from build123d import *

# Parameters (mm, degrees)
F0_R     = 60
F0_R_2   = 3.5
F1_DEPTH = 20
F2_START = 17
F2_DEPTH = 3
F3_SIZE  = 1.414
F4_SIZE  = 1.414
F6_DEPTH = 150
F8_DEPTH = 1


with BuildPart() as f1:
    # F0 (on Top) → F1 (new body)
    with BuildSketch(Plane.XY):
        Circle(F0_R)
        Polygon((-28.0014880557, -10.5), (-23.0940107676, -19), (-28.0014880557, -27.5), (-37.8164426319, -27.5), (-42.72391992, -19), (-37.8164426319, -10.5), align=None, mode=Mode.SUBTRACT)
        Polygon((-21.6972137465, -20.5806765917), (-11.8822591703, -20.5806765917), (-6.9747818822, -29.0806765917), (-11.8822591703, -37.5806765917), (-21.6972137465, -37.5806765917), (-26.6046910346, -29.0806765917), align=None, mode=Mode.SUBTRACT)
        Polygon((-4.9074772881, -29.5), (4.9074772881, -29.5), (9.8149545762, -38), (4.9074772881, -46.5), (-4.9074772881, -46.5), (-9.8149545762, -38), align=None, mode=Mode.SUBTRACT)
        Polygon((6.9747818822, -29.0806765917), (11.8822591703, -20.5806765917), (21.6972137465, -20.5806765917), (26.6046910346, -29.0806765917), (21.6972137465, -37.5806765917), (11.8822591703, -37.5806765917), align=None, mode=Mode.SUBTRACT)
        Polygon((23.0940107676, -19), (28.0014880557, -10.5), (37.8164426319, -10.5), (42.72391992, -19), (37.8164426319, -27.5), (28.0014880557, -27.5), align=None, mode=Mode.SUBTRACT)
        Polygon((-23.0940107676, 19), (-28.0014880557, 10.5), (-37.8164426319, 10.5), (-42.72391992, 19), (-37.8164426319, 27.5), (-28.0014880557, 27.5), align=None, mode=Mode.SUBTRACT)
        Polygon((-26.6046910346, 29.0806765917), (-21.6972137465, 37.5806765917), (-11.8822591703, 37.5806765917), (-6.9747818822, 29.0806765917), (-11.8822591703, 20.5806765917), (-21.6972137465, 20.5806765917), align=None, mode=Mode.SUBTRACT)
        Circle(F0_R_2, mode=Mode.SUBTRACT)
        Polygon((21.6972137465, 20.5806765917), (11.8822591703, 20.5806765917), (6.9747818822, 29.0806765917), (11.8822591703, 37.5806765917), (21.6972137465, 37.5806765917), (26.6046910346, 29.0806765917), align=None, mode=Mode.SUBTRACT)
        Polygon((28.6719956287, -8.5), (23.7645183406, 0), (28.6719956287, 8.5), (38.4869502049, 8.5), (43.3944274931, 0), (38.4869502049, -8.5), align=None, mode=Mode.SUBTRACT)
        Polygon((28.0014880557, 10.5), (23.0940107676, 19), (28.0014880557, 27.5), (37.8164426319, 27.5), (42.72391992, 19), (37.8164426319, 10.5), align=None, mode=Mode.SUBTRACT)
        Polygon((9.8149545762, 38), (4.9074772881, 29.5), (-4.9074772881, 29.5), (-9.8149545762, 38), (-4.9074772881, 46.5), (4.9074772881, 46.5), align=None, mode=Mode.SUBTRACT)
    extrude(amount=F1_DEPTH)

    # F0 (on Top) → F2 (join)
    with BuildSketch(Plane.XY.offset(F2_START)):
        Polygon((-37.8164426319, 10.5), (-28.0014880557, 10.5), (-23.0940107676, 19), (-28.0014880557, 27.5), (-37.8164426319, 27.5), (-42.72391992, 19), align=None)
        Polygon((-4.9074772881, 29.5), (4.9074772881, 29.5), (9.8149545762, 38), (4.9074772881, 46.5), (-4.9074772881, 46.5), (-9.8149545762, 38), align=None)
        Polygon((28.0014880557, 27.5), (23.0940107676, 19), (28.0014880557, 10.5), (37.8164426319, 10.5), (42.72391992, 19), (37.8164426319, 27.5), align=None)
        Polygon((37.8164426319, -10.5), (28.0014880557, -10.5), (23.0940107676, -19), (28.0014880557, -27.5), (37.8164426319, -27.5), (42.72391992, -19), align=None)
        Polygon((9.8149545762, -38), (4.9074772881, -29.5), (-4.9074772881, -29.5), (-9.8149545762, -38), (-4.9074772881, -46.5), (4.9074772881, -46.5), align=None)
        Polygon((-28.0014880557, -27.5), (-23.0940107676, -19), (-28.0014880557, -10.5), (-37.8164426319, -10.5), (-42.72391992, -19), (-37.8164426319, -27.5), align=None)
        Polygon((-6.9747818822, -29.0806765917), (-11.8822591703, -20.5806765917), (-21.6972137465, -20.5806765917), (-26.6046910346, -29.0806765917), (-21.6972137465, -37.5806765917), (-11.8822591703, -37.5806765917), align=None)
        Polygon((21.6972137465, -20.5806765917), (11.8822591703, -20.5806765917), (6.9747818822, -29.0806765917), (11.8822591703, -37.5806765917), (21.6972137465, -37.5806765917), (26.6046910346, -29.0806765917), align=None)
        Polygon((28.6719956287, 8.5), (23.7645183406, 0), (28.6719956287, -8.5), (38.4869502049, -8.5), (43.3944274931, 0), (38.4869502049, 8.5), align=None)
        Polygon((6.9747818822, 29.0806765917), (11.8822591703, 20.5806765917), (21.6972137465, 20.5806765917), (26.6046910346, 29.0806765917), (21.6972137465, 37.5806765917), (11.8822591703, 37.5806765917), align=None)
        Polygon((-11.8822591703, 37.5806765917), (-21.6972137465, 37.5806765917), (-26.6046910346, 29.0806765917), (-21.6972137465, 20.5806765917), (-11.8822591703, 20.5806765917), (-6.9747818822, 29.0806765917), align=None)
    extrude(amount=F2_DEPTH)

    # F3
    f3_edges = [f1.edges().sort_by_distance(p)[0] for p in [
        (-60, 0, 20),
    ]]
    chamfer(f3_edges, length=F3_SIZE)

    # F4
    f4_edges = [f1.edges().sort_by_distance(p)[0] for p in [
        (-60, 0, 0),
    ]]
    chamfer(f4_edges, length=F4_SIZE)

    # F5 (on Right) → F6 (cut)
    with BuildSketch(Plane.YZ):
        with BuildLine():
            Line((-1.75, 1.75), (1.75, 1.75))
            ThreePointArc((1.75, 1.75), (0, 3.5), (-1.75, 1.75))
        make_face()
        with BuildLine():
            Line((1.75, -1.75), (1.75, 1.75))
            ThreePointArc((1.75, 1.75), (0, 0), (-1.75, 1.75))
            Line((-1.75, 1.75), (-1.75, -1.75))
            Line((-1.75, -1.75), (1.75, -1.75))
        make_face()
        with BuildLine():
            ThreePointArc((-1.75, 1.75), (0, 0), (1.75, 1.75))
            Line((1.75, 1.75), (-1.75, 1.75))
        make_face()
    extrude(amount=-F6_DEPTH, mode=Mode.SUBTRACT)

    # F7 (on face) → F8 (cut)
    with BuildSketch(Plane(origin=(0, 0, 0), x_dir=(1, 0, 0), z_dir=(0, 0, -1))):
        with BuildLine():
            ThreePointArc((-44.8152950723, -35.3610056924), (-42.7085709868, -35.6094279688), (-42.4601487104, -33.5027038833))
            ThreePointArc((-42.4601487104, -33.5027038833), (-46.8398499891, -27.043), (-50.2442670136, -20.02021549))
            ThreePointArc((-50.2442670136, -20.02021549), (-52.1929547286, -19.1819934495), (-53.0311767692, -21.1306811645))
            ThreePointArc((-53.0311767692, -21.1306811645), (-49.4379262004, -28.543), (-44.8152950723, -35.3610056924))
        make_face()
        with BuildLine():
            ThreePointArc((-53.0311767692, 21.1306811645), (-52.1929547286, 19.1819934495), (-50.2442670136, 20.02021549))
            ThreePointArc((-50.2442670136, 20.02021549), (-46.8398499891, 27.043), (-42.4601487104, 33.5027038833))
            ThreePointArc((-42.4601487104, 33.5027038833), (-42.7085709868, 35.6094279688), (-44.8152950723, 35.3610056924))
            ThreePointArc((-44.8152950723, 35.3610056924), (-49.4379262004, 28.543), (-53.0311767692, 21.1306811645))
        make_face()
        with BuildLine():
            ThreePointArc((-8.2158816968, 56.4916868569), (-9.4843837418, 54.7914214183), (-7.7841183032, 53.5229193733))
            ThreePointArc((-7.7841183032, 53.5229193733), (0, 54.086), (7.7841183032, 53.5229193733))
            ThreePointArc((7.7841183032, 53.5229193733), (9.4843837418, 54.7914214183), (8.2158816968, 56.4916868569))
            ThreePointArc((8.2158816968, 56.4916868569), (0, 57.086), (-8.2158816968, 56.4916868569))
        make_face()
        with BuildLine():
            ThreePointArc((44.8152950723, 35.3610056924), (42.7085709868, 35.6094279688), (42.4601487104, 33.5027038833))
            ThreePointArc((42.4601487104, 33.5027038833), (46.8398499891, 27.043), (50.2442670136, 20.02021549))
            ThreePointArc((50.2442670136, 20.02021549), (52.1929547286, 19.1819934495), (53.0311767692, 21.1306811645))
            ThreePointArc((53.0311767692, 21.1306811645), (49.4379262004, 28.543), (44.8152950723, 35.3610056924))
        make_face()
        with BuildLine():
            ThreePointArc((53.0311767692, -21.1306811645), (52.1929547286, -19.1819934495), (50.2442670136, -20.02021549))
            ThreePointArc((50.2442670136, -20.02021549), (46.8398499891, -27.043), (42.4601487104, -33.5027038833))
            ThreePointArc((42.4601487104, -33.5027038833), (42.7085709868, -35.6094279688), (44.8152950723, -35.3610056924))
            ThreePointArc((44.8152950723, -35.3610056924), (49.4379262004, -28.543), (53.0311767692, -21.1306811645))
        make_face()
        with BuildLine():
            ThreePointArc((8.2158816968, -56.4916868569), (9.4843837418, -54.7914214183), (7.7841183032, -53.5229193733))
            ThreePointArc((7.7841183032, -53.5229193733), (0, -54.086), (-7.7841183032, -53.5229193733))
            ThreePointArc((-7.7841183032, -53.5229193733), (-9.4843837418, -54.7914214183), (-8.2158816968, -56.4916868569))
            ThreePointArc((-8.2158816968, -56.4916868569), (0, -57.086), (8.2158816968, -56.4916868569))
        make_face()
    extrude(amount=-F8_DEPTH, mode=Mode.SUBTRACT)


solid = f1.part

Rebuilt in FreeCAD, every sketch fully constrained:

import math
import FreeCAD as App
import Part
import Sketcher
Q = App.Units.Quantity


def edges_at(feature, points):
    """Names of the edges that pass closest to the given points."""
    edges = feature.Shape.Edges
    near = lambda p: min(range(len(edges)), key=lambda i: edges[i].distToShape(Part.Vertex(*p))[0])
    return sorted({f"Edge{near(p) + 1}" for p in points})


def add_polygon(sketch, points):
    """Adds a closed chain of lines whose ends are joined by coincident constraints."""
    first, n = sketch.GeometryCount, len(points)
    for a, b in zip(points, points[1:] + points[:1]):
        sketch.addGeometry(Part.LineSegment(App.Vector(*a, 0), App.Vector(*b, 0)), False)
    for i in range(n):
        sketch.addConstraint(Sketcher.Constraint("Coincident", first + i, 2, first + (i + 1) % n, 1))

doc = App.newDocument("Part")
body = doc.addObject("PartDesign::Body", "Body")

# Sketch on XY plane
sketch1 = doc.addObject("Sketcher::SketchObject", "Sketch")
body.addObject(sketch1)
sketch1.AttachmentSupport = (doc.XY_Plane, [""])
sketch1.MapMode = "FlatFace"
sketch1.addGeometry(Part.Circle(App.Vector(0, 0, 0), App.Vector(0, 0, 1), 60), False)  # 0
add_polygon(sketch1, [(-9.8, -38), (-4.9, -29.5), (4.9, -29.5), (9.8, -38), (4.9, -46.5), (-4.9, -46.5)])  # lines 1-6
add_polygon(sketch1, [(-26.6, -29.1), (-21.7, -20.6), (-11.9, -20.6), (-7, -29.1), (-11.9, -37.6), (-21.7, -37.6)])  # lines 7-12
add_polygon(sketch1, [(-37.8, -10.5), (-28, -10.5), (-23.1, -19), (-28, -27.5), (-37.8, -27.5), (-42.7, -19)])  # lines 13-18
add_polygon(sketch1, [(11.9, -37.6), (7, -29.1), (11.9, -20.6), (21.7, -20.6), (26.6, -29.1), (21.7, -37.6)])  # lines 19-24
add_polygon(sketch1, [(28, -27.5), (23.1, -19), (28, -10.5), (37.8, -10.5), (42.7, -19), (37.8, -27.5)])  # lines 25-30
add_polygon(sketch1, [(-28, 27.5), (-23.1, 19), (-28, 10.5), (-37.8, 10.5), (-42.7, 19), (-37.8, 27.5)])  # lines 31-36
sketch1.addGeometry(Part.Circle(App.Vector(0, 0, 0), App.Vector(0, 0, 1), 3.5), False)  # 37
add_polygon(sketch1, [(-21.7, 20.6), (-26.6, 29.1), (-21.7, 37.6), (-11.9, 37.6), (-7, 29.1), (-11.9, 20.6)])  # lines 38-43
add_polygon(sketch1, [(4.9, 46.5), (9.8, 38), (4.9, 29.5), (-4.9, 29.5), (-9.8, 38), (-4.9, 46.5)])  # lines 44-49
add_polygon(sketch1, [(38.5, -8.5), (28.7, -8.5), (23.8, 0), (28.7, 8.5), (38.5, 8.5), (43.4, 0)])  # lines 50-55
add_polygon(sketch1, [(37.8, 10.5), (28, 10.5), (23.1, 19), (28, 27.5), (37.8, 27.5), (42.7, 19)])  # lines 56-61
add_polygon(sketch1, [(26.6, 29.1), (21.7, 20.6), (11.9, 20.6), (7, 29.1), (11.9, 37.6), (21.7, 37.6)])  # lines 62-67
sketch1.addConstraint(Sketcher.Constraint("Horizontal", 2))
sketch1.addConstraint(Sketcher.Constraint("Horizontal", 5))
sketch1.addConstraint(Sketcher.Constraint("Horizontal", 8))
sketch1.addConstraint(Sketcher.Constraint("Horizontal", 11))
sketch1.addConstraint(Sketcher.Constraint("Horizontal", 13))
sketch1.addConstraint(Sketcher.Constraint("Horizontal", 16))
sketch1.addConstraint(Sketcher.Constraint("Horizontal", 21))
sketch1.addConstraint(Sketcher.Constraint("Horizontal", 24))
sketch1.addConstraint(Sketcher.Constraint("Horizontal", 27))
sketch1.addConstraint(Sketcher.Constraint("Horizontal", 30))
sketch1.addConstraint(Sketcher.Constraint("Horizontal", 33))
sketch1.addConstraint(Sketcher.Constraint("Horizontal", 36))
sketch1.addConstraint(Sketcher.Constraint("Horizontal", 40))
sketch1.addConstraint(Sketcher.Constraint("Horizontal", 43))
sketch1.addConstraint(Sketcher.Constraint("Horizontal", 46))
sketch1.addConstraint(Sketcher.Constraint("Horizontal", 49))
sketch1.addConstraint(Sketcher.Constraint("Horizontal", 50))
sketch1.addConstraint(Sketcher.Constraint("Horizontal", 53))
sketch1.addConstraint(Sketcher.Constraint("Horizontal", 56))
sketch1.addConstraint(Sketcher.Constraint("Horizontal", 59))
sketch1.addConstraint(Sketcher.Constraint("Horizontal", 63))
sketch1.addConstraint(Sketcher.Constraint("Horizontal", 66))
sketch1.addConstraint(Sketcher.Constraint("Coincident", 0, 3, -1, 1))
sketch1.addConstraint(Sketcher.Constraint("Coincident", 37, 3, -1, 1))
sketch1.addConstraint(Sketcher.Constraint("Symmetric", 25, 2, 31, 2, -1, 1))
sketch1.addConstraint(Sketcher.Constraint("Symmetric", 26, 2, 32, 2, -1, 1))
sketch1.addConstraint(Sketcher.Constraint("Symmetric", 28, 2, 34, 2, -1, 1))
sketch1.addConstraint(Sketcher.Constraint("Symmetric", 29, 2, 35, 2, -1, 1))
sketch1.addConstraint(Sketcher.Constraint("Symmetric", 22, 2, 38, 2, -1, 1))
sketch1.addConstraint(Sketcher.Constraint("Symmetric", 23, 2, 39, 2, -1, 1))
sketch1.addConstraint(Sketcher.Constraint("Symmetric", 19, 2, 41, 2, -1, 1))
sketch1.addConstraint(Sketcher.Constraint("Symmetric", 20, 2, 42, 2, -1, 1))
sketch1.addConstraint(Sketcher.Constraint("Symmetric", 6, 2, 44, 2, -1, 1))
sketch1.addConstraint(Sketcher.Constraint("Symmetric", 1, 2, 45, 2, -1, 1))
sketch1.addConstraint(Sketcher.Constraint("Symmetric", 3, 2, 47, 2, -1, 1))
sketch1.addConstraint(Sketcher.Constraint("Symmetric", 4, 2, 48, 2, -1, 1))
sketch1.addConstraint(Sketcher.Constraint("Symmetric", 13, 2, 56, 2, -1, 1))
sketch1.addConstraint(Sketcher.Constraint("Symmetric", 14, 2, 57, 2, -1, 1))
sketch1.addConstraint(Sketcher.Constraint("Symmetric", 15, 2, 58, 2, -1, 1))
sketch1.addConstraint(Sketcher.Constraint("Symmetric", 17, 2, 60, 2, -1, 1))
sketch1.addConstraint(Sketcher.Constraint("Symmetric", 7, 2, 62, 2, -1, 1))
sketch1.addConstraint(Sketcher.Constraint("Symmetric", 9, 2, 64, 2, -1, 1))
sketch1.addConstraint(Sketcher.Constraint("Symmetric", 10, 2, 65, 2, -1, 1))
sketch1.addConstraint(Sketcher.Constraint("Symmetric", 12, 2, 67, 2, -1, 1))
sketch1.addConstraint(Sketcher.Constraint("Symmetric", 3, 2, 6, 2, -2))
sketch1.addConstraint(Sketcher.Constraint("Symmetric", 9, 2, 19, 2, -2))
sketch1.addConstraint(Sketcher.Constraint("Symmetric", 8, 2, 20, 2, -2))
sketch1.addConstraint(Sketcher.Constraint("Symmetric", 12, 2, 22, 2, -2))
sketch1.addConstraint(Sketcher.Constraint("Symmetric", 11, 2, 23, 2, -2))
sketch1.addConstraint(Sketcher.Constraint("Symmetric", 14, 2, 25, 2, -2))
sketch1.addConstraint(Sketcher.Constraint("Symmetric", 13, 2, 26, 2, -2))
sketch1.addConstraint(Sketcher.Constraint("Symmetric", 17, 2, 28, 2, -2))
sketch1.addConstraint(Sketcher.Constraint("Symmetric", 16, 2, 29, 2, -2))
sketch1.addConstraint(Sketcher.Constraint("Symmetric", 50, 2, 52, 2, -1))
sketch1.addConstraint(Sketcher.Constraint("PointOnObject", 51, 2, -1))
sketch1.addConstraint(Sketcher.Constraint("PointOnObject", 54, 2, -1))
sketch1.addConstraint(Sketcher.Constraint("Parallel", 1, 4))
sketch1.addConstraint(Sketcher.Constraint("Parallel", 3, 6))
sketch1.addConstraint(Sketcher.Constraint("Parallel", 4, 7))
sketch1.addConstraint(Sketcher.Constraint("Parallel", 6, 9))
sketch1.addConstraint(Sketcher.Constraint("Parallel", 7, 10))
sketch1.addConstraint(Sketcher.Constraint("Parallel", 9, 12))
sketch1.addConstraint(Sketcher.Constraint("Parallel", 12, 14))
sketch1.addConstraint(Sketcher.Constraint("Parallel", 10, 15))
sketch1.addConstraint(Sketcher.Constraint("Parallel", 14, 17))
sketch1.addConstraint(Sketcher.Constraint("Parallel", 15, 18))
sketch1.addConstraint(Sketcher.Constraint("Parallel", 17, 19))
sketch1.addConstraint(Sketcher.Constraint("Parallel", 18, 20))
sketch1.addConstraint(Sketcher.Constraint("Parallel", 19, 22))
sketch1.addConstraint(Sketcher.Constraint("Parallel", 22, 25))
sketch1.addConstraint(Sketcher.Constraint("Parallel", 25, 28))
sketch1.addConstraint(Sketcher.Constraint("Parallel", 28, 31))
sketch1.addConstraint(Sketcher.Constraint("Parallel", 31, 34))
sketch1.addConstraint(Sketcher.Constraint("Parallel", 34, 38))
sketch1.addConstraint(Sketcher.Constraint("Parallel", 38, 41))
sketch1.addConstraint(Sketcher.Constraint("Parallel", 41, 44))
sketch1.addConstraint(Sketcher.Constraint("Parallel", 44, 47))
sketch1.addConstraint(Sketcher.Constraint("Parallel", 47, 51))
sketch1.addConstraint(Sketcher.Constraint("Parallel", 51, 54))
sketch1.addConstraint(Sketcher.Constraint("Parallel", 52, 55))
sketch1.addConstraint(Sketcher.Constraint("Parallel", 57, 60))
sketch1.addConstraint(Sketcher.Constraint("Parallel", 58, 61))
sketch1.addConstraint(Sketcher.Constraint("Parallel", 60, 64))
sketch1.addConstraint(Sketcher.Constraint("Parallel", 64, 67))
sketch1.addConstraint(Sketcher.Constraint("Horizontal", 9, 2, 12, 2))
sketch1.addConstraint(Sketcher.Constraint("Horizontal", 14, 2, 17, 2))
sketch1.addConstraint(Sketcher.Constraint("Vertical", 2, 2, 4, 2))
sketch1.addConstraint(Sketcher.Constraint("Vertical", 8, 2, 10, 2))
sketch1.addConstraint(Sketcher.Constraint("Vertical", 13, 2, 15, 2))
sketch1.addConstraint(Sketcher.Constraint("Equal", 5, 8))
sketch1.addConstraint(Sketcher.Constraint("Equal", 11, 13))
sketch1.addConstraint(Sketcher.Constraint("Equal", 49, 50))
sketch1.addConstraint(Sketcher.Constraint("Equal", 6, 7))
sketch1.addConstraint(Sketcher.Constraint("Equal", 12, 14))
sketch1.addConstraint(Sketcher.Constraint("Equal", 48, 51))
sketch1.addConstraint(Sketcher.Constraint("Diameter", 0, 120.0))
sketch1.addConstraint(Sketcher.Constraint("Diameter", 37, 7.0))
sketch1.addConstraint(Sketcher.Constraint("Angle", 1, Q("60 deg")))
sketch1.addConstraint(Sketcher.Constraint("DistanceY", 3, 2, -1, 1, 38.0))
sketch1.addConstraint(Sketcher.Constraint("DistanceY", 14, 2, -1, 1, 19.0))
sketch1.addConstraint(Sketcher.Constraint("DistanceY", 1, 2, -1, 1, 29.5))
sketch1.addConstraint(Sketcher.Constraint("DistanceX", 2, 1, 2, 2, 9.814955))
sketch1.addConstraint(Sketcher.Constraint("DistanceX", 8, 2, -1, 1, 11.882259))
sketch1.addConstraint(Sketcher.Constraint("DistanceX", 13, 2, -1, 1, 28.001488))
sketch1.addConstraint(Sketcher.Constraint("DistanceX", -1, 1, 51, 2, 23.764518))
sketch1.addConstraint(Sketcher.Constraint("DistanceY", 7, 2, -1, 1, 20.580677))
pad1 = doc.addObject("PartDesign::Pad", "Pad")
body.addObject(pad1)
pad1.Profile = sketch1
pad1.Length = 20

# Sketch on XY plane
sketch2 = doc.addObject("Sketcher::SketchObject", "Sketch001")
body.addObject(sketch2)
sketch2.AttachmentSupport = (doc.XY_Plane, [""])
sketch2.MapMode = "FlatFace"
sketch2.AttachmentOffset = App.Placement(App.Vector(0, 0, 17), App.Rotation())
add_polygon(sketch2, [(-38, 10), (-28, 10), (-23, 19), (-28, 28), (-38, 28), (-43, 19)])  # lines 0-5
add_polygon(sketch2, [(-5, 30), (5, 30), (10, 38), (5, 46), (-5, 46), (-10, 38)])  # lines 6-11
add_polygon(sketch2, [(28, 28), (23, 19), (28, 10), (38, 10), (43, 19), (38, 28)])  # lines 12-17
add_polygon(sketch2, [(38, -10), (28, -10), (23, -19), (28, -28), (38, -28), (43, -19)])  # lines 18-23
add_polygon(sketch2, [(10, -38), (5, -30), (-5, -30), (-10, -38), (-5, -46), (5, -46)])  # lines 24-29
add_polygon(sketch2, [(-28, -28), (-23, -19), (-28, -10), (-38, -10), (-43, -19), (-38, -28)])  # lines 30-35
add_polygon(sketch2, [(-7, -29), (-12, -21), (-22, -21), (-27, -29), (-22, -38), (-12, -38)])  # lines 36-41
add_polygon(sketch2, [(22, -21), (12, -21), (7, -29), (12, -38), (22, -38), (27, -29)])  # lines 42-47
add_polygon(sketch2, [(29, 8), (24, 0), (29, -8), (38, -8), (43, 0), (38, 8)])  # lines 48-53
add_polygon(sketch2, [(7, 29), (12, 21), (22, 21), (27, 29), (22, 38), (12, 38)])  # lines 54-59
add_polygon(sketch2, [(-12, 38), (-22, 38), (-27, 29), (-22, 21), (-12, 21), (-7, 29)])  # lines 60-65
sketch2.addConstraint(Sketcher.Constraint("Horizontal", 0))
sketch2.addConstraint(Sketcher.Constraint("Horizontal", 3))
sketch2.addConstraint(Sketcher.Constraint("Horizontal", 6))
sketch2.addConstraint(Sketcher.Constraint("Horizontal", 9))
sketch2.addConstraint(Sketcher.Constraint("Horizontal", 14))
sketch2.addConstraint(Sketcher.Constraint("Horizontal", 17))
sketch2.addConstraint(Sketcher.Constraint("Horizontal", 18))
sketch2.addConstraint(Sketcher.Constraint("Horizontal", 21))
sketch2.addConstraint(Sketcher.Constraint("Horizontal", 25))
sketch2.addConstraint(Sketcher.Constraint("Horizontal", 28))
sketch2.addConstraint(Sketcher.Constraint("Horizontal", 32))
sketch2.addConstraint(Sketcher.Constraint("Horizontal", 35))
sketch2.addConstraint(Sketcher.Constraint("Horizontal", 37))
sketch2.addConstraint(Sketcher.Constraint("Horizontal", 40))
sketch2.addConstraint(Sketcher.Constraint("Horizontal", 42))
sketch2.addConstraint(Sketcher.Constraint("Horizontal", 45))
sketch2.addConstraint(Sketcher.Constraint("Horizontal", 50))
sketch2.addConstraint(Sketcher.Constraint("Horizontal", 53))
sketch2.addConstraint(Sketcher.Constraint("Horizontal", 55))
sketch2.addConstraint(Sketcher.Constraint("Horizontal", 58))
sketch2.addConstraint(Sketcher.Constraint("Horizontal", 60))
sketch2.addConstraint(Sketcher.Constraint("Horizontal", 63))
sketch2.addConstraint(Sketcher.Constraint("Symmetric", 0, 2, 18, 2, -1, 1))
sketch2.addConstraint(Sketcher.Constraint("Symmetric", 1, 2, 19, 2, -1, 1))
sketch2.addConstraint(Sketcher.Constraint("Symmetric", 2, 2, 20, 2, -1, 1))
sketch2.addConstraint(Sketcher.Constraint("Symmetric", 4, 2, 22, 2, -1, 1))
sketch2.addConstraint(Sketcher.Constraint("Symmetric", 11, 2, 24, 2, -1, 1))
sketch2.addConstraint(Sketcher.Constraint("Symmetric", 7, 2, 26, 2, -1, 1))
sketch2.addConstraint(Sketcher.Constraint("Symmetric", 8, 2, 27, 2, -1, 1))
sketch2.addConstraint(Sketcher.Constraint("Symmetric", 10, 2, 29, 2, -1, 1))
sketch2.addConstraint(Sketcher.Constraint("Symmetric", 12, 2, 30, 2, -1, 1))
sketch2.addConstraint(Sketcher.Constraint("Symmetric", 13, 2, 31, 2, -1, 1))
sketch2.addConstraint(Sketcher.Constraint("Symmetric", 15, 2, 33, 2, -1, 1))
sketch2.addConstraint(Sketcher.Constraint("Symmetric", 16, 2, 34, 2, -1, 1))
sketch2.addConstraint(Sketcher.Constraint("Symmetric", 36, 2, 54, 2, -1, 1))
sketch2.addConstraint(Sketcher.Constraint("Symmetric", 38, 2, 56, 2, -1, 1))
sketch2.addConstraint(Sketcher.Constraint("Symmetric", 39, 2, 57, 2, -1, 1))
sketch2.addConstraint(Sketcher.Constraint("Symmetric", 41, 2, 59, 2, -1, 1))
sketch2.addConstraint(Sketcher.Constraint("Symmetric", 45, 2, 60, 2, -1, 1))
sketch2.addConstraint(Sketcher.Constraint("Symmetric", 46, 2, 61, 2, -1, 1))
sketch2.addConstraint(Sketcher.Constraint("Symmetric", 47, 2, 62, 2, -1, 1))
sketch2.addConstraint(Sketcher.Constraint("Symmetric", 43, 2, 64, 2, -1, 1))
sketch2.addConstraint(Sketcher.Constraint("Symmetric", 7, 2, 10, 2, -2))
sketch2.addConstraint(Sketcher.Constraint("Symmetric", 1, 2, 12, 2, -2))
sketch2.addConstraint(Sketcher.Constraint("Symmetric", 0, 2, 13, 2, -2))
sketch2.addConstraint(Sketcher.Constraint("Symmetric", 4, 2, 15, 2, -2))
sketch2.addConstraint(Sketcher.Constraint("Symmetric", 3, 2, 16, 2, -2))
sketch2.addConstraint(Sketcher.Constraint("Symmetric", 36, 2, 42, 2, -2))
sketch2.addConstraint(Sketcher.Constraint("Symmetric", 41, 2, 43, 2, -2))
sketch2.addConstraint(Sketcher.Constraint("Symmetric", 40, 2, 44, 2, -2))
sketch2.addConstraint(Sketcher.Constraint("Symmetric", 38, 2, 46, 2, -2))
sketch2.addConstraint(Sketcher.Constraint("Symmetric", 50, 2, 52, 2, -1))
sketch2.addConstraint(Sketcher.Constraint("PointOnObject", 48, 2, -1))
sketch2.addConstraint(Sketcher.Constraint("PointOnObject", 51, 2, -1))
sketch2.addConstraint(Sketcher.Constraint("Parallel", 1, 4))
sketch2.addConstraint(Sketcher.Constraint("Parallel", 2, 5))
sketch2.addConstraint(Sketcher.Constraint("Parallel", 4, 7))
sketch2.addConstraint(Sketcher.Constraint("Parallel", 5, 8))
sketch2.addConstraint(Sketcher.Constraint("Parallel", 7, 10))
sketch2.addConstraint(Sketcher.Constraint("Parallel", 8, 11))
sketch2.addConstraint(Sketcher.Constraint("Parallel", 10, 12))
sketch2.addConstraint(Sketcher.Constraint("Parallel", 11, 13))
sketch2.addConstraint(Sketcher.Constraint("Parallel", 12, 15))
sketch2.addConstraint(Sketcher.Constraint("Parallel", 19, 22))
sketch2.addConstraint(Sketcher.Constraint("Parallel", 20, 23))
sketch2.addConstraint(Sketcher.Constraint("Parallel", 22, 26))
sketch2.addConstraint(Sketcher.Constraint("Parallel", 26, 29))
sketch2.addConstraint(Sketcher.Constraint("Parallel", 29, 30))
sketch2.addConstraint(Sketcher.Constraint("Parallel", 30, 33))
sketch2.addConstraint(Sketcher.Constraint("Parallel", 34, 36))
sketch2.addConstraint(Sketcher.Constraint("Parallel", 33, 38))
sketch2.addConstraint(Sketcher.Constraint("Parallel", 36, 39))
sketch2.addConstraint(Sketcher.Constraint("Parallel", 38, 41))
sketch2.addConstraint(Sketcher.Constraint("Parallel", 43, 46))
sketch2.addConstraint(Sketcher.Constraint("Parallel", 44, 47))
sketch2.addConstraint(Sketcher.Constraint("Parallel", 46, 48))
sketch2.addConstraint(Sketcher.Constraint("Parallel", 47, 49))
sketch2.addConstraint(Sketcher.Constraint("Parallel", 48, 51))
sketch2.addConstraint(Sketcher.Constraint("Parallel", 51, 56))
sketch2.addConstraint(Sketcher.Constraint("Parallel", 56, 59))
sketch2.addConstraint(Sketcher.Constraint("Parallel", 61, 64))
sketch2.addConstraint(Sketcher.Constraint("Parallel", 62, 65))
sketch2.addConstraint(Sketcher.Constraint("Horizontal", 1, 2, 4, 2))
sketch2.addConstraint(Sketcher.Constraint("Horizontal", 38, 2, 41, 2))
sketch2.addConstraint(Sketcher.Constraint("Vertical", 0, 2, 2, 2))
sketch2.addConstraint(Sketcher.Constraint("Vertical", 6, 2, 8, 2))
sketch2.addConstraint(Sketcher.Constraint("Vertical", 37, 2, 39, 2))
sketch2.addConstraint(Sketcher.Constraint("Equal", 3, 6))
sketch2.addConstraint(Sketcher.Constraint("Equal", 35, 37))
sketch2.addConstraint(Sketcher.Constraint("Equal", 45, 50))
sketch2.addConstraint(Sketcher.Constraint("Equal", 5, 7))
sketch2.addConstraint(Sketcher.Constraint("Equal", 34, 36))
sketch2.addConstraint(Sketcher.Constraint("Equal", 47, 48))
sketch2.addConstraint(Sketcher.Constraint("Angle", 1, Q("60 deg")))
sketch2.addConstraint(Sketcher.Constraint("DistanceY", -1, 1, 1, 2, 19.0))
sketch2.addConstraint(Sketcher.Constraint("DistanceY", -1, 1, 7, 2, 38.0))
sketch2.addConstraint(Sketcher.Constraint("DistanceY", -1, 1, 0, 2, 10.5))
sketch2.addConstraint(Sketcher.Constraint("DistanceX", 0, 1, 0, 2, 9.814955))
sketch2.addConstraint(Sketcher.Constraint("DistanceX", 0, 2, -1, 1, 28.001488))
sketch2.addConstraint(Sketcher.Constraint("DistanceX", 36, 2, -1, 1, 11.882259))
sketch2.addConstraint(Sketcher.Constraint("DistanceX", -1, 1, 48, 2, 23.764518))
sketch2.addConstraint(Sketcher.Constraint("DistanceY", 36, 2, -1, 1, 20.580677))
pad2 = doc.addObject("PartDesign::Pad", "Pad001")
body.addObject(pad2)
pad2.Profile = sketch2
pad2.Length = 3
doc.recompute()

chamfer = doc.addObject("PartDesign::Chamfer", "Chamfer")
body.addObject(chamfer)
chamfer.Base = (pad2, edges_at(pad2, [(-60, 0, 20)]))
chamfer.Size = 1.414
doc.recompute()

chamfer2 = doc.addObject("PartDesign::Chamfer", "Chamfer001")
body.addObject(chamfer2)
chamfer2.Base = (chamfer, edges_at(chamfer, [(-60, 0, 0)]))
chamfer2.Size = 1.414

# Sketch on YZ plane
sketch3 = doc.addObject("Sketcher::SketchObject", "Sketch002")
body.addObject(sketch3)
sketch3.AttachmentSupport = (doc.YZ_Plane, [""])
sketch3.MapMode = "FlatFace"
sketch3.addGeometry(Part.ArcOfCircle(Part.Circle(App.Vector(0, 1.8, 0), App.Vector(0, 0, 1), 1.8), math.radians(0), math.radians(180)), False)
sketch3.addGeometry(Part.LineSegment(App.Vector(-1.8, 1.8, 0), App.Vector(-1.8, -1.8, 0)), False)
sketch3.addGeometry(Part.LineSegment(App.Vector(-1.8, -1.8, 0), App.Vector(1.8, -1.8, 0)), False)
sketch3.addGeometry(Part.LineSegment(App.Vector(1.8, -1.8, 0), App.Vector(1.8, 1.8, 0)), False)
sketch3.addConstraint(Sketcher.Constraint("Tangent", 0, 2, 1, 1))
sketch3.addConstraint(Sketcher.Constraint("Coincident", 1, 2, 2, 1))
sketch3.addConstraint(Sketcher.Constraint("Coincident", 2, 2, 3, 1))
sketch3.addConstraint(Sketcher.Constraint("Tangent", 3, 2, 0, 1))
sketch3.addConstraint(Sketcher.Constraint("Vertical", 1))
sketch3.addConstraint(Sketcher.Constraint("Horizontal", 2))
sketch3.addConstraint(Sketcher.Constraint("Vertical", 3))
sketch3.addConstraint(Sketcher.Constraint("Symmetric", 0, 2, 2, 2, -1, 1))
sketch3.addConstraint(Sketcher.Constraint("Equal", 2, 1))
sketch3.addConstraint(Sketcher.Constraint("Radius", 0, 1.75))
pocket1 = doc.addObject("PartDesign::Pocket", "Pocket")
body.addObject(pocket1)
pocket1.Profile = sketch3
pocket1.Length = 150

# Sketch on XY plane
sketch4 = doc.addObject("Sketcher::SketchObject", "Sketch003")
body.addObject(sketch4)
sketch4.AttachmentSupport = (doc.XY_Plane, [""])
sketch4.MapMode = "FlatFace"
sketch4.addGeometry(Part.ArcOfCircle(Part.Circle(App.Vector(-43.6, 34.4, 0), App.Vector(0, 0, 1), 1.5), math.radians(-38), math.radians(142)), False)
sketch4.addGeometry(Part.ArcOfCircle(Part.Circle(App.Vector(0, 0, 0), App.Vector(0, 0, 1), 54.1), math.radians(141.73), math.radians(158.27)), False)
sketch4.addGeometry(Part.ArcOfCircle(Part.Circle(App.Vector(-51.6, 20.6, 0), App.Vector(0, 0, 1), 1.5), math.radians(158), math.radians(338)), False)
sketch4.addGeometry(Part.ArcOfCircle(Part.Circle(App.Vector(0, 0, 0), App.Vector(0, 0, 1), 57.1), math.radians(141.73), math.radians(158.27)), False)
sketch4.addGeometry(Part.ArcOfCircle(Part.Circle(App.Vector(-51.6, -20.6, 0), App.Vector(0, 0, 1), 1.5), math.radians(22), math.radians(202)), False)
sketch4.addGeometry(Part.ArcOfCircle(Part.Circle(App.Vector(0, 0, 0), App.Vector(0, 0, 1), 54.1), math.radians(-158.27), math.radians(-141.73)), False)
sketch4.addGeometry(Part.ArcOfCircle(Part.Circle(App.Vector(-43.6, -34.4, 0), App.Vector(0, 0, 1), 1.5), math.radians(-142), math.radians(38)), False)
sketch4.addGeometry(Part.ArcOfCircle(Part.Circle(App.Vector(0, 0, 0), App.Vector(0, 0, 1), 57.1), math.radians(-158.27), math.radians(-141.73)), False)
sketch4.addGeometry(Part.ArcOfCircle(Part.Circle(App.Vector(-8, -55, 0), App.Vector(0, 0, 1), 1.5), math.radians(82), math.radians(262)), False)
sketch4.addGeometry(Part.ArcOfCircle(Part.Circle(App.Vector(0, 0, 0), App.Vector(0, 0, 1), 54.1), math.radians(-98.27), math.radians(-81.73)), False)
sketch4.addGeometry(Part.ArcOfCircle(Part.Circle(App.Vector(8, -55, 0), App.Vector(0, 0, 1), 1.5), math.radians(-82), math.radians(98)), False)
sketch4.addGeometry(Part.ArcOfCircle(Part.Circle(App.Vector(0, 0, 0), App.Vector(0, 0, 1), 57.1), math.radians(-98.27), math.radians(-81.73)), False)
sketch4.addGeometry(Part.ArcOfCircle(Part.Circle(App.Vector(43.6, -34.4, 0), App.Vector(0, 0, 1), 1.5), math.radians(142), math.radians(322)), False)
sketch4.addGeometry(Part.ArcOfCircle(Part.Circle(App.Vector(0, 0, 0), App.Vector(0, 0, 1), 54.1), math.radians(-38.27), math.radians(-21.73)), False)
sketch4.addGeometry(Part.ArcOfCircle(Part.Circle(App.Vector(51.6, -20.6, 0), App.Vector(0, 0, 1), 1.5), math.radians(-22), math.radians(158)), False)
sketch4.addGeometry(Part.ArcOfCircle(Part.Circle(App.Vector(0, 0, 0), App.Vector(0, 0, 1), 57.1), math.radians(-38.27), math.radians(-21.73)), False)
sketch4.addGeometry(Part.ArcOfCircle(Part.Circle(App.Vector(51.6, 20.6, 0), App.Vector(0, 0, 1), 1.5), math.radians(-158), math.radians(22)), False)
sketch4.addGeometry(Part.ArcOfCircle(Part.Circle(App.Vector(0, 0, 0), App.Vector(0, 0, 1), 54.1), math.radians(21.73), math.radians(38.27)), False)
sketch4.addGeometry(Part.ArcOfCircle(Part.Circle(App.Vector(43.6, 34.4, 0), App.Vector(0, 0, 1), 1.5), math.radians(38), math.radians(218)), False)
sketch4.addGeometry(Part.ArcOfCircle(Part.Circle(App.Vector(0, 0, 0), App.Vector(0, 0, 1), 57.1), math.radians(21.73), math.radians(38.27)), False)
sketch4.addGeometry(Part.ArcOfCircle(Part.Circle(App.Vector(8, 55, 0), App.Vector(0, 0, 1), 1.5), math.radians(-98), math.radians(82)), False)
sketch4.addGeometry(Part.ArcOfCircle(Part.Circle(App.Vector(0, 0, 0), App.Vector(0, 0, 1), 54.1), math.radians(81.73), math.radians(98.27)), False)
sketch4.addGeometry(Part.ArcOfCircle(Part.Circle(App.Vector(-8, 55, 0), App.Vector(0, 0, 1), 1.5), math.radians(98), math.radians(278)), False)
sketch4.addGeometry(Part.ArcOfCircle(Part.Circle(App.Vector(0, 0, 0), App.Vector(0, 0, 1), 57.1), math.radians(81.73), math.radians(98.27)), False)
sketch4.addConstraint(Sketcher.Constraint("Tangent", 0, 1, 1, 1))
sketch4.addConstraint(Sketcher.Constraint("Tangent", 1, 2, 2, 2))
sketch4.addConstraint(Sketcher.Constraint("Tangent", 2, 1, 3, 2))
sketch4.addConstraint(Sketcher.Constraint("Tangent", 3, 1, 0, 2))
sketch4.addConstraint(Sketcher.Constraint("Tangent", 4, 1, 5, 1))
sketch4.addConstraint(Sketcher.Constraint("Tangent", 5, 2, 6, 2))
sketch4.addConstraint(Sketcher.Constraint("Tangent", 6, 1, 7, 2))
sketch4.addConstraint(Sketcher.Constraint("Tangent", 7, 1, 4, 2))
sketch4.addConstraint(Sketcher.Constraint("Tangent", 8, 1, 9, 1))
sketch4.addConstraint(Sketcher.Constraint("Tangent", 9, 2, 10, 2))
sketch4.addConstraint(Sketcher.Constraint("Tangent", 10, 1, 11, 2))
sketch4.addConstraint(Sketcher.Constraint("Tangent", 11, 1, 8, 2))
sketch4.addConstraint(Sketcher.Constraint("Tangent", 12, 1, 13, 1))
sketch4.addConstraint(Sketcher.Constraint("Tangent", 13, 2, 14, 2))
sketch4.addConstraint(Sketcher.Constraint("Tangent", 14, 1, 15, 2))
sketch4.addConstraint(Sketcher.Constraint("Tangent", 15, 1, 12, 2))
sketch4.addConstraint(Sketcher.Constraint("Tangent", 16, 1, 17, 1))
sketch4.addConstraint(Sketcher.Constraint("Tangent", 17, 2, 18, 2))
sketch4.addConstraint(Sketcher.Constraint("Tangent", 18, 1, 19, 2))
sketch4.addConstraint(Sketcher.Constraint("Tangent", 19, 1, 16, 2))
sketch4.addConstraint(Sketcher.Constraint("Tangent", 20, 1, 21, 1))
sketch4.addConstraint(Sketcher.Constraint("Tangent", 21, 2, 22, 2))
sketch4.addConstraint(Sketcher.Constraint("Tangent", 22, 1, 23, 2))
sketch4.addConstraint(Sketcher.Constraint("Tangent", 23, 1, 20, 2))
sketch4.addConstraint(Sketcher.Constraint("Coincident", 1, 3, -1, 1))
sketch4.addConstraint(Sketcher.Constraint("Coincident", 3, 3, -1, 1))
sketch4.addConstraint(Sketcher.Constraint("Coincident", 5, 3, -1, 1))
sketch4.addConstraint(Sketcher.Constraint("Coincident", 7, 3, -1, 1))
sketch4.addConstraint(Sketcher.Constraint("Coincident", 9, 3, -1, 1))
sketch4.addConstraint(Sketcher.Constraint("Coincident", 11, 3, -1, 1))
sketch4.addConstraint(Sketcher.Constraint("Coincident", 13, 3, -1, 1))
sketch4.addConstraint(Sketcher.Constraint("Coincident", 15, 3, -1, 1))
sketch4.addConstraint(Sketcher.Constraint("Coincident", 17, 3, -1, 1))
sketch4.addConstraint(Sketcher.Constraint("Coincident", 19, 3, -1, 1))
sketch4.addConstraint(Sketcher.Constraint("Coincident", 21, 3, -1, 1))
sketch4.addConstraint(Sketcher.Constraint("Coincident", 23, 3, -1, 1))
sketch4.addConstraint(Sketcher.Constraint("Equal", 2, 4))
sketch4.addConstraint(Sketcher.Constraint("Equal", 1, 5))
sketch4.addConstraint(Sketcher.Constraint("Equal", 6, 8))
sketch4.addConstraint(Sketcher.Constraint("Equal", 5, 9))
sketch4.addConstraint(Sketcher.Constraint("Equal", 10, 12))
sketch4.addConstraint(Sketcher.Constraint("Equal", 9, 13))
sketch4.addConstraint(Sketcher.Constraint("Equal", 14, 16))
sketch4.addConstraint(Sketcher.Constraint("Equal", 13, 17))
sketch4.addConstraint(Sketcher.Constraint("Equal", 18, 20))
sketch4.addConstraint(Sketcher.Constraint("Equal", 17, 21))
sketch4.addConstraint(Sketcher.Constraint("Horizontal", 8, 3, 10, 3))
sketch4.addConstraint(Sketcher.Constraint("Horizontal", 6, 3, 12, 3))
sketch4.addConstraint(Sketcher.Constraint("Horizontal", 4, 3, 14, 3))
sketch4.addConstraint(Sketcher.Constraint("Horizontal", 2, 3, 16, 3))
sketch4.addConstraint(Sketcher.Constraint("Horizontal", 0, 3, 18, 3))
sketch4.addConstraint(Sketcher.Constraint("Horizontal", 20, 3, 22, 3))
sketch4.addConstraint(Sketcher.Constraint("Vertical", 2, 3, 4, 3))
sketch4.addConstraint(Sketcher.Constraint("Vertical", 0, 3, 6, 3))
sketch4.addConstraint(Sketcher.Constraint("Vertical", 10, 3, 20, 3))
sketch4.addConstraint(Sketcher.Constraint("Radius", 0, 1.5))
sketch4.addConstraint(Sketcher.Constraint("DistanceX", 8, 3, -1, 1, 8.0))
sketch4.addConstraint(Sketcher.Constraint("Radius", 1, 54.086))
sketch4.addConstraint(Sketcher.Constraint("DistanceX", 2, 3, 0, 3, 8.0))
sketch4.addConstraint(Sketcher.Constraint("DistanceY", 0, 1, 22, 3, 21.504599))
pocket2 = doc.addObject("PartDesign::Pocket", "Pocket001")
body.addObject(pocket2)
pocket2.Profile = sketch4
pocket2.Length = 1
pocket2.Reversed = True

doc.recompute()
